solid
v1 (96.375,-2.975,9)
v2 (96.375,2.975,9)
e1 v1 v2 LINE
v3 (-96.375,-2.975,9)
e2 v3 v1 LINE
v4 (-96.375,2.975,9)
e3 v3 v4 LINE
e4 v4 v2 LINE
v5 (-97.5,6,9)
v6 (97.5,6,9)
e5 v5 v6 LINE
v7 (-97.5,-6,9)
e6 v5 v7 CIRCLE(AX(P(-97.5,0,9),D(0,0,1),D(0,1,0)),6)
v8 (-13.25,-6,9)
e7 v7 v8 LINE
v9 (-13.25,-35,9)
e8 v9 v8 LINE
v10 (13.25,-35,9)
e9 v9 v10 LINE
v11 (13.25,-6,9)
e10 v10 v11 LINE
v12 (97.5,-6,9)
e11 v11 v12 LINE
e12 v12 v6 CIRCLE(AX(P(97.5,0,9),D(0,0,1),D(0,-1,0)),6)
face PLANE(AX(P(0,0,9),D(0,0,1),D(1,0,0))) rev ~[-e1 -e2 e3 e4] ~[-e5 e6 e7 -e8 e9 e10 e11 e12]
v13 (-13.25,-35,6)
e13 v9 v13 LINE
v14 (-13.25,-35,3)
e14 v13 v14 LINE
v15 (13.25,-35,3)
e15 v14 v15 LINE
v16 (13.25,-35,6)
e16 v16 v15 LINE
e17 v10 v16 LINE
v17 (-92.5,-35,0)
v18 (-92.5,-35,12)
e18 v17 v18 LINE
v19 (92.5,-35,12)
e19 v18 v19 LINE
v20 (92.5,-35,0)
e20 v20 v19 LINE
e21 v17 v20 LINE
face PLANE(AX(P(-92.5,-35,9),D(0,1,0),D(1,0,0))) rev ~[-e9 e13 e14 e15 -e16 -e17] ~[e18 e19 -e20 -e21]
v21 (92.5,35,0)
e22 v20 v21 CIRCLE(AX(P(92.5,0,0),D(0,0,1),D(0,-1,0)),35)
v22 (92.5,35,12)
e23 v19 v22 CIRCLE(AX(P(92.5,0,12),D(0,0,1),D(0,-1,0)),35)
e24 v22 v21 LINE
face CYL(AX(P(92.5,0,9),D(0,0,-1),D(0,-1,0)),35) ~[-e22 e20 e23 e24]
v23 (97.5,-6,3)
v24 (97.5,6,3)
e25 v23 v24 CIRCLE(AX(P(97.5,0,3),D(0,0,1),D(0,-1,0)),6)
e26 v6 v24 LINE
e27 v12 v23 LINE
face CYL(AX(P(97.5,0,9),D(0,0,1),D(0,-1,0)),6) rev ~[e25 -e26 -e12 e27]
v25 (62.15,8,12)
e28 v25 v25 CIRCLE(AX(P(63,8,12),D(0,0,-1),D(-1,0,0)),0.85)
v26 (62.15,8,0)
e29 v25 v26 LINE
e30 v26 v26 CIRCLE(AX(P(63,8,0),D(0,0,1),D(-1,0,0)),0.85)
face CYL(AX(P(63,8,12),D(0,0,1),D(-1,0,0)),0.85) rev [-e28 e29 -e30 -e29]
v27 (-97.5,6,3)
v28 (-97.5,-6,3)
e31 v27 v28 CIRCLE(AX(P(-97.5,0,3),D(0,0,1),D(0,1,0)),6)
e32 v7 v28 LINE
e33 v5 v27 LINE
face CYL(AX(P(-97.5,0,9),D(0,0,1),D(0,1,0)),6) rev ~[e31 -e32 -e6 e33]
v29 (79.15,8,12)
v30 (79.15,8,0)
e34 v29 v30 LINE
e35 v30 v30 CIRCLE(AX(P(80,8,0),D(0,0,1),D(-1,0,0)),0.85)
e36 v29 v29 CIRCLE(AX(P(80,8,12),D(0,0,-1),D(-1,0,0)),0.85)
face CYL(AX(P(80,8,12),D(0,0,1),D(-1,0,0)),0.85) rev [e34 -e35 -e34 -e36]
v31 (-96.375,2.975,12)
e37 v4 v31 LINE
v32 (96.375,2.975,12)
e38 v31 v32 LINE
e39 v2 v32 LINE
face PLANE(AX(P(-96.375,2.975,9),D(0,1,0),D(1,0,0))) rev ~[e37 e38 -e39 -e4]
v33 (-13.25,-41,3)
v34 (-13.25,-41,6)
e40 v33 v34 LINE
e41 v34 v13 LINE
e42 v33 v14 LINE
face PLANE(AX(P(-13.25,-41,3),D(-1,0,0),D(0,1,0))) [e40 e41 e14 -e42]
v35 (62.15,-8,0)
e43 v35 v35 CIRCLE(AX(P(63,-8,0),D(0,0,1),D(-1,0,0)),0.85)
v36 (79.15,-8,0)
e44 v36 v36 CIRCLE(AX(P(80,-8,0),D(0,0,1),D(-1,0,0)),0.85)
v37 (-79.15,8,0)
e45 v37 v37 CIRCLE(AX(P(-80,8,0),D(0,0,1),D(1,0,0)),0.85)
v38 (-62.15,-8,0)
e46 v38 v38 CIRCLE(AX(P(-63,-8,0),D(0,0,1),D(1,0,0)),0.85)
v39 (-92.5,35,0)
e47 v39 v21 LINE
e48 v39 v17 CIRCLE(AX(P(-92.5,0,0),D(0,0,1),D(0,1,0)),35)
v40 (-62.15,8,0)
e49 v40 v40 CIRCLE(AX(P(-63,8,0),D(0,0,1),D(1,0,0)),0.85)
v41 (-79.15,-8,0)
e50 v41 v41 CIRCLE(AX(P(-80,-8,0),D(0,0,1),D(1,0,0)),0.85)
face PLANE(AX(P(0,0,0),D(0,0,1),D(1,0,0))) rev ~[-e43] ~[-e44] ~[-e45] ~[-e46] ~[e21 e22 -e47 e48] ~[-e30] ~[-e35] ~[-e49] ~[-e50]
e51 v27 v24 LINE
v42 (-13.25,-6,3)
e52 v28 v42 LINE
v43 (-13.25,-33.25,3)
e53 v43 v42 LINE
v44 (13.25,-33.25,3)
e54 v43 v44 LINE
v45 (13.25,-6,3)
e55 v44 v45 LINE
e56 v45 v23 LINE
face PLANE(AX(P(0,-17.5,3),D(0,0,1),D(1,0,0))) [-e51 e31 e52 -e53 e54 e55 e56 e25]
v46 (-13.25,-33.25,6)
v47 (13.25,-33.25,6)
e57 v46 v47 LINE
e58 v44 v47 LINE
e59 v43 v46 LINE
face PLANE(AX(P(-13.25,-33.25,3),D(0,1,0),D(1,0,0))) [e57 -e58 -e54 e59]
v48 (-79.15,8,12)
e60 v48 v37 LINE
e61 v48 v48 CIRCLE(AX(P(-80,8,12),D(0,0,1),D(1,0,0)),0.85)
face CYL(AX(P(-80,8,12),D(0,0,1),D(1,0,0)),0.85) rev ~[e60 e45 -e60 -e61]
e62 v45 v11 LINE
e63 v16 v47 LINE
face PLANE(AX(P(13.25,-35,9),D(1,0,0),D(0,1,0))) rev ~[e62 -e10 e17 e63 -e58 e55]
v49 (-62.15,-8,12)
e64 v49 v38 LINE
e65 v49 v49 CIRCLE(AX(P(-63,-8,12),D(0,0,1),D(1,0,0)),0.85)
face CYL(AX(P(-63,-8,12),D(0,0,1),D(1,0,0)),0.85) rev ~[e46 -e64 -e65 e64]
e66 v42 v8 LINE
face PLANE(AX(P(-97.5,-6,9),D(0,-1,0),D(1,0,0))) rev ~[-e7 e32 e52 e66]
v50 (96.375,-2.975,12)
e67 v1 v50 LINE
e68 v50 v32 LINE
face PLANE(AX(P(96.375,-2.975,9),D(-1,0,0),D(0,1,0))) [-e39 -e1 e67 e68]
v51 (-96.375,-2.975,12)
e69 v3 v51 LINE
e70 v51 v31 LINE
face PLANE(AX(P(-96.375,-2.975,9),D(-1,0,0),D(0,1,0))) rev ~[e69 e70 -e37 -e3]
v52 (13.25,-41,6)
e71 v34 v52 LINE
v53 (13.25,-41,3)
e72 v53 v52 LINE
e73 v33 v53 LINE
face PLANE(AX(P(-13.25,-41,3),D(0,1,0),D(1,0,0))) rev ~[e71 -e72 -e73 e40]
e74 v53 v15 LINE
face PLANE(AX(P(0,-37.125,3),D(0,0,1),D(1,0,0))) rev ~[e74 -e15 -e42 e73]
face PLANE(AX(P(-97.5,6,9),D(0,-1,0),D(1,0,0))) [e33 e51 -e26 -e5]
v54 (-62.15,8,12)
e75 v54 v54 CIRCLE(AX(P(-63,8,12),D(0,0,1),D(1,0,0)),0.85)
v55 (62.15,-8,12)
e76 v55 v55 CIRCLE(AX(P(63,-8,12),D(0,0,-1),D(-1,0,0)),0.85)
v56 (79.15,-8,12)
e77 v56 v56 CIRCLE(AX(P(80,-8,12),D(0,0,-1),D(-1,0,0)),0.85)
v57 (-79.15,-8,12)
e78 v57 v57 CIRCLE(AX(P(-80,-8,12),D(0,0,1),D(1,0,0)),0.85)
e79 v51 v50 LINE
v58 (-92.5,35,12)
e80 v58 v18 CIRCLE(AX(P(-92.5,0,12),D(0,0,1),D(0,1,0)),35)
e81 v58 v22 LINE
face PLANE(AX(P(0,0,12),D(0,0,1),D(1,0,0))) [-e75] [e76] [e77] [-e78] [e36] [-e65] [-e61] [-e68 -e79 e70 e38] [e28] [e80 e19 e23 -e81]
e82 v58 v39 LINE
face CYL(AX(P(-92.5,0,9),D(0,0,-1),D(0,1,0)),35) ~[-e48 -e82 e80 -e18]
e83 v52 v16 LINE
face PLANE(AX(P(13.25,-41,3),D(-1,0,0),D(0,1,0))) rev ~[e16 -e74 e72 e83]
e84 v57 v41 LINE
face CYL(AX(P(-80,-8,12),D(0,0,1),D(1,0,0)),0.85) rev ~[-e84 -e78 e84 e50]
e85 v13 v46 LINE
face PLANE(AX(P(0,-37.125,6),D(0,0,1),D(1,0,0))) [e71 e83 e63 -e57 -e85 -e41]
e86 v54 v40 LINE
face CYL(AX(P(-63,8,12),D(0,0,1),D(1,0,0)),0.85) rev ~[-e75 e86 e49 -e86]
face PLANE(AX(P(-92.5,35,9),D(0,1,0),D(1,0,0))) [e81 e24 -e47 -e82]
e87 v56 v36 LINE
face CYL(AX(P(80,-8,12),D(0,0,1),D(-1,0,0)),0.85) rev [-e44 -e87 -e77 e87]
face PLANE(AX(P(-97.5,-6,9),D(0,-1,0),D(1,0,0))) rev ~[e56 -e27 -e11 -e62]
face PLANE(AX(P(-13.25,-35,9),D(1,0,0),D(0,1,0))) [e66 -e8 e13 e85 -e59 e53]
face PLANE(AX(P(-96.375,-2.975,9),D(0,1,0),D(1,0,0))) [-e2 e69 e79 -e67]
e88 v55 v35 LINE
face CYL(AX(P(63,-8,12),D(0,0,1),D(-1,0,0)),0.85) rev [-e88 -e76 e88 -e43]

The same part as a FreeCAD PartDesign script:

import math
import FreeCAD as App
import Part
import Sketcher

V = App.Vector


def add_polygon(sketch, points):
    """Adds a closed chain of lines whose ends are joined by coincident constraints."""
    first, n = sketch.GeometryCount, len(points)
    for a, b in zip(points, points[1:] + points[:1]):
        sketch.addGeometry(Part.LineSegment(App.Vector(*a, 0), App.Vector(*b, 0)), False)
    for i in range(n):
        sketch.addConstraint(Sketcher.Constraint("Coincident", first + i, 2, first + (i + 1) % n, 1))

doc = App.newDocument("Part")
body = doc.addObject("PartDesign::Body", "Body")

# Sketch on XY plane
sketch1 = body.newObject("Sketcher::SketchObject", "Sketch")
sketch1.AttachmentSupport = (doc.getObject("XY_Plane"), [""])
sketch1.MapMode = "FlatFace"
sketch1.addGeometry(Part.ArcOfCircle(Part.Circle(V(-92.5, 0, 0), V(0, 0, 1), 35), math.radians(90), math.radians(270)), False)
sketch1.addGeometry(Part.LineSegment(V(-92.5, -35, 0), V(92.5, -35, 0)), False)
sketch1.addGeometry(Part.ArcOfCircle(Part.Circle(V(92.5, 0, 0), V(0, 0, 1), 35), math.radians(-90), math.radians(90)), False)
sketch1.addGeometry(Part.LineSegment(V(92.5, 35, 0), V(-92.5, 35, 0)), False)
sketch1.addConstraint(Sketcher.Constraint("Tangent", 0, 2, 1, 1))
sketch1.addConstraint(Sketcher.Constraint("Tangent", 1, 2, 2, 1))
sketch1.addConstraint(Sketcher.Constraint("Tangent", 2, 2, 3, 1))
sketch1.addConstraint(Sketcher.Constraint("Tangent", 3, 2, 0, 1))
sketch1.addConstraint(Sketcher.Constraint("Horizontal", 1))
sketch1.addConstraint(Sketcher.Constraint("Horizontal", 3))
sketch1.addConstraint(Sketcher.Constraint("Symmetric", 0, 3, 2, 3, -1, 1))
sketch1.addConstraint(Sketcher.Constraint("Radius", 0, 35.0))
sketch1.addConstraint(Sketcher.Constraint("DistanceX", 1, 1, 1, 2, 185.0))
pad1 = body.newObject("PartDesign::Pad", "Pad")
pad1.Profile = sketch1
pad1.Length = 9

# Sketch on XY plane
sketch2 = body.newObject("Sketcher::SketchObject", "Sketch001")
sketch2.AttachmentSupport = (doc.getObject("XY_Plane"), [""])
sketch2.MapMode = "FlatFace"
sketch2.AttachmentOffset = App.Placement(V(0, 0, 9), App.Rotation())
sketch2.addGeometry(Part.ArcOfCircle(Part.Circle(V(-97.5, 0, 0), V(0, 0, 1), 6), math.radians(90), math.radians(270)), False)
sketch2.addGeometry(Part.LineSegment(V(-97.5, -6, 0), V(97.5, -6, 0)), False)
sketch2.addGeometry(Part.ArcOfCircle(Part.Circle(V(97.5, 0, 0), V(0, 0, 1), 6), math.radians(-90), math.radians(90)), False)
sketch2.addGeometry(Part.LineSegment(V(97.5, 6, 0), V(-97.5, 6, 0)), False)
sketch2.addConstraint(Sketcher.Constraint("Tangent", 0, 2, 1, 1))
sketch2.addConstraint(Sketcher.Constraint("Tangent", 1, 2, 2, 1))
sketch2.addConstraint(Sketcher.Constraint("Tangent", 2, 2, 3, 1))
sketch2.addConstraint(Sketcher.Constraint("Tangent", 3, 2, 0, 1))
sketch2.addConstraint(Sketcher.Constraint("Horizontal", 1))
sketch2.addConstraint(Sketcher.Constraint("Horizontal", 3))
sketch2.addConstraint(Sketcher.Constraint("Symmetric", 0, 3, 2, 3, -1, 1))
sketch2.addConstraint(Sketcher.Constraint("Radius", 0, 6.0))
sketch2.addConstraint(Sketcher.Constraint("DistanceX", 1, 1, 1, 2, 195.0))
pocket1 = body.newObject("PartDesign::Pocket", "Pocket")
pocket1.Profile = sketch2
pocket1.Length = 6

# Sketch on XY plane
sketch3 = body.newObject("Sketcher::SketchObject", "Sketch002")
sketch3.AttachmentSupport = (doc.getObject("XY_Plane"), [""])
sketch3.MapMode = "FlatFace"
sketch3.AttachmentOffset = App.Placement(V(0, 0, 9), App.Rotation())
add_polygon(sketch3, [(-13.25, 0), (-13.25, -35), (13.25, -35), (13.25, 0)])  # lines 0-3
sketch3.addConstraint(Sketcher.Constraint("Vertical", 0))
sketch3.addConstraint(Sketcher.Constraint("Horizontal", 1))
sketch3.addConstraint(Sketcher.Constraint("Vertical", 2))
sketch3.addConstraint(Sketcher.Constraint("Horizontal", 3))
sketch3.addConstraint(Sketcher.Constraint("Symmetric", 2, 2, 3, 2, -1, 1))
sketch3.addConstraint(Sketcher.Constraint("DistanceY", 0, 2, 0, 1, 35.0))
sketch3.addConstraint(Sketcher.Constraint("DistanceX", 1, 1, 1, 2, 26.5))
pocket2 = body.newObject("PartDesign::Pocket", "Pocket001")
pocket2.Profile = sketch3
pocket2.Length = 6

# Sketch on XY plane
sketch4 = body.newObject("Sketcher::SketchObject", "Sketch003")
sketch4.AttachmentSupport = (doc.getObject("XY_Plane"), [""])
sketch4.MapMode = "FlatFace"
sketch4.AttachmentOffset = App.Placement(V(0, 0, 9), App.Rotation())
sketch4.addGeometry(Part.ArcOfCircle(Part.Circle(V(-92.5, 0, 0), V(0, 0, 1), 35), math.radians(90), math.radians(270)), False)  # 0
sketch4.addGeometry(Part.LineSegment(V(-92.5, -35, 0), V(92.5, -35, 0)), False)  # 1
sketch4.addGeometry(Part.ArcOfCircle(Part.Circle(V(92.5, 0, 0), V(0, 0, 1), 35), math.radians(-90), math.radians(90)), False)  # 2
sketch4.addGeometry(Part.LineSegment(V(92.5, 35, 0), V(-92.5, 35, 0)), False)  # 3
add_polygon(sketch4, [(96.375, -2.975), (-96.375, -2.975), (-96.375, 2.975), (96.375, 2.975)])  # lines 4-7
sketch4.addConstraint(Sketcher.Constraint("Tangent", 0, 2, 1, 1))
sketch4.addConstraint(Sketcher.Constraint("Tangent", 1, 2, 2, 1))
sketch4.addConstraint(Sketcher.Constraint("Tangent", 2, 2, 3, 1))
sketch4.addConstraint(Sketcher.Constraint("Tangent", 3, 2, 0, 1))
sketch4.addConstraint(Sketcher.Constraint("Horizontal", 1))
sketch4.addConstraint(Sketcher.Constraint("Horizontal", 3))
sketch4.addConstraint(Sketcher.Constraint("Horizontal", 4))
sketch4.addConstraint(Sketcher.Constraint("Vertical", 5))
sketch4.addConstraint(Sketcher.Constraint("Horizontal", 6))
sketch4.addConstraint(Sketcher.Constraint("Vertical", 7))
sketch4.addConstraint(Sketcher.Constraint("Symmetric", 0, 3, 2, 3, -1, 1))
sketch4.addConstraint(Sketcher.Constraint("Symmetric", 4, 2, 6, 2, -1, 1))
sketch4.addConstraint(Sketcher.Constraint("Radius", 0, 35.0))
sketch4.addConstraint(Sketcher.Constraint("DistanceX", 1, 1, 1, 2, 185.0))
sketch4.addConstraint(Sketcher.Constraint("DistanceX", 4, 2, 4, 1, 192.75))
sketch4.addConstraint(Sketcher.Constraint("DistanceY", 5, 1, 5, 2, 5.95))
pad2 = body.newObject("PartDesign::Pad", "Pad001")
pad2.Profile = sketch4
pad2.Length = 3

# Sketch on XY plane
sketch5 = body.newObject("Sketcher::SketchObject", "Sketch004")
sketch5.AttachmentSupport = (doc.getObject("XY_Plane"), [""])
sketch5.MapMode = "FlatFace"
sketch5.AttachmentOffset = App.Placement(V(0, 0, 12), App.Rotation())
sketch5.addGeometry(Part.Circle(V(-80, -8, 0), V(0, 0, 1), 0.85), False)
sketch5.addGeometry(Part.Circle(V(-63, -8, 0), V(0, 0, 1), 0.85), False)
sketch5.addGeometry(Part.Circle(V(-63, 8, 0), V(0, 0, 1), 0.85), False)
sketch5.addGeometry(Part.Circle(V(-80, 8, 0), V(0, 0, 1), 0.85), False)
sketch5.addConstraint(Sketcher.Constraint("Equal", 0, 1))
sketch5.addConstraint(Sketcher.Constraint("Equal", 1, 2))
sketch5.addConstraint(Sketcher.Constraint("Equal", 2, 3))
sketch5.addConstraint(Sketcher.Constraint("Symmetric", 1, 3, 2, 3, -1))
sketch5.addConstraint(Sketcher.Constraint("Symmetric", 0, 3, 3, 3, -1))
sketch5.addConstraint(Sketcher.Constraint("Horizontal", 0, 3, 1, 3))
sketch5.addConstraint(Sketcher.Constraint("Diameter", 0, 1.7))
sketch5.addConstraint(Sketcher.Constraint("DistanceX", 0, 3, -1, 1, 80.0))
sketch5.addConstraint(Sketcher.Constraint("DistanceY", 0, 3, -1, 1, 8.0))
sketch5.addConstraint(Sketcher.Constraint("DistanceX", 1, 3, -1, 1, 63.0))
pocket3 = body.newObject("PartDesign::Pocket", "Pocket002")
pocket3.Profile = sketch5
pocket3.Type = "ThroughAll"

# Sketch on XY plane
sketch6 = body.newObject("Sketcher::SketchObject", "Sketch005")
sketch6.AttachmentSupport = (doc.getObject("XY_Plane"), [""])
sketch6.MapMode = "FlatFace"
sketch6.AttachmentOffset = App.Placement(V(0, 0, 3), App.Rotation())
add_polygon(sketch6, [(-13.25, -33.25), (-13.25, -41), (13.25, -41), (13.25, -33.25)])  # lines 0-3
sketch6.addConstraint(Sketcher.Constraint("Vertical", 0))
sketch6.addConstraint(Sketcher.Constraint("Horizontal", 1))
sketch6.addConstraint(Sketcher.Constraint("Vertical", 2))
sketch6.addConstraint(Sketcher.Constraint("Horizontal", 3))
sketch6.addConstraint(Sketcher.Constraint("DistanceX", 1, 1, 1, 2, 26.5))
sketch6.addConstraint(Sketcher.Constraint("DistanceY", 0, 2, -1, 1, 41.0))
sketch6.addConstraint(Sketcher.Constraint("DistanceY", 0, 2, 0, 1, 7.75))
sketch6.addConstraint(Sketcher.Constraint("DistanceX", 0, 2, -1, 1, 13.25))
pad3 = body.newObject("PartDesign::Pad", "Pad002")
pad3.Profile = sketch6
pad3.Length = 3
doc.recompute()

mirrored = body.newObject("PartDesign::Mirrored", "Mirrored")
mirrored.Originals = [pocket3]
mirrored.MirrorPlane = (doc.getObject("YZ_Plane"), [""])
body.Tip = mirrored

doc.recompute()
